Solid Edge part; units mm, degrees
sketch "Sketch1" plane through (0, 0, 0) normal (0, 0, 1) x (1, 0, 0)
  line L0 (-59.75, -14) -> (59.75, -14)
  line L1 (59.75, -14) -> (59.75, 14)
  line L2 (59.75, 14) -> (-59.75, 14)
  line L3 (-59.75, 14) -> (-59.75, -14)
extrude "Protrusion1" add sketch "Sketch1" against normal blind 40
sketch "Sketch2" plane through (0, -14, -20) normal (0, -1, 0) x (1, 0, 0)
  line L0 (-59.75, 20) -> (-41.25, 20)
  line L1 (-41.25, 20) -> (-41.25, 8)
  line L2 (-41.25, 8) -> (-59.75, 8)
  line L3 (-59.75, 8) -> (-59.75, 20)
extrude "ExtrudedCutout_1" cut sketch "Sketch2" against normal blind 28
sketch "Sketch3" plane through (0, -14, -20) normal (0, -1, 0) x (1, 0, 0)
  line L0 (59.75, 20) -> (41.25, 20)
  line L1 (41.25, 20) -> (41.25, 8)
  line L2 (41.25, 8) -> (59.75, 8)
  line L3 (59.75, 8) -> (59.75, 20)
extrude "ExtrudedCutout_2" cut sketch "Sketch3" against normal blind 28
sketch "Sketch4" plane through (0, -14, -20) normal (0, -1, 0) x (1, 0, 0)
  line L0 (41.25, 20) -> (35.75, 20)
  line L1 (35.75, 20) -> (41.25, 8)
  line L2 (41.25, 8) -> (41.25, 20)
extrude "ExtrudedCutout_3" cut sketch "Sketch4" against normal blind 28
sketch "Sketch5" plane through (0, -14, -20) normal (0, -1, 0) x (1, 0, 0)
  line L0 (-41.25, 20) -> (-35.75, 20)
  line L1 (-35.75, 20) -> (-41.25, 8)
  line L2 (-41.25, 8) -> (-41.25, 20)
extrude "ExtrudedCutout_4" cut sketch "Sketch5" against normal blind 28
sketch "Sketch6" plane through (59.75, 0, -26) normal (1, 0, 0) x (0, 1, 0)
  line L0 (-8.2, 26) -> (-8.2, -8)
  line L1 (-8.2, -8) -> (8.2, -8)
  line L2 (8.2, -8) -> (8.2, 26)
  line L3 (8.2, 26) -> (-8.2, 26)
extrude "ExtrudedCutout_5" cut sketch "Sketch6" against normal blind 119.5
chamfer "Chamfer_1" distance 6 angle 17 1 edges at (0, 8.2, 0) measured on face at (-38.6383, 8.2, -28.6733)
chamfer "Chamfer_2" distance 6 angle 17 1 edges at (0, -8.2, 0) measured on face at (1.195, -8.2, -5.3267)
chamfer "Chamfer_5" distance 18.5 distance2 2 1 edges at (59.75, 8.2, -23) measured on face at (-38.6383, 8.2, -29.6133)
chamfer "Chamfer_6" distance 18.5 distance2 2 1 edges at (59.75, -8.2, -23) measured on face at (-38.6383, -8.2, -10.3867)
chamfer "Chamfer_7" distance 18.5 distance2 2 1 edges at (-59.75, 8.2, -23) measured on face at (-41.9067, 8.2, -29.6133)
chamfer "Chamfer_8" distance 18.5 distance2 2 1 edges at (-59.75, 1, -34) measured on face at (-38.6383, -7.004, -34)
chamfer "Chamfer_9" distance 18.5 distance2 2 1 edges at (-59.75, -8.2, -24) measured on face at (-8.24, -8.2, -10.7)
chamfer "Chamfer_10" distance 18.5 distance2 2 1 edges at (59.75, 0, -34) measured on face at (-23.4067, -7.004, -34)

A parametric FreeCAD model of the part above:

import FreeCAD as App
import Part
import Sketcher

V = App.Vector
Q = App.Units.Quantity


def edges_at(feature, points):
    """Names of the edges that pass closest to the given points."""
    edges = feature.Shape.Edges
    near = lambda p: min(range(len(edges)), key=lambda i: edges[i].distToShape(Part.Vertex(*p))[0])
    return sorted({f"Edge{near(p) + 1}" for p in points})

doc = App.newDocument("Part")
params = doc.addObject("Spreadsheet::Sheet", "Params")
for row, (alias, value) in enumerate([
    ("sketch1_height", "28 mm"),
    ("sketch1_width", "119.5 mm"),
    ("pad1_length", "40 mm"),
    ("sketch2_height", "12 mm"),
    ("sketch2_width", "18.5 mm"),
    ("pocket1_length", "28 mm"),
    ("sketch3_height", "12 mm"),
    ("sketch3_width", "18.5 mm"),
    ("pocket2_length", "28 mm"),
    ("sketch4_height", "12 mm"),
    ("sketch4_width", "5.5 mm"),
    ("pocket3_length", "28 mm"),
    ("sketch5_height", "12 mm"),
    ("sketch5_width", "5.5 mm"),
    ("pocket4_length", "28 mm"),
    ("sketch6_height", "34 mm"),
    ("sketch6_width", "16.4 mm"),
    ("pocket5_length", "119.5 mm"),
    ("chamfer_size", "6 mm"),
    ("chamfer2_size", "6 mm"),
    ("chamfer3_size", "18.5 mm"),
    ("chamfer3_size2", "2 mm"),
    ("chamfer4_size", "18.5 mm"),
    ("chamfer4_size2", "2 mm"),
    ("chamfer5_size", "18.5 mm"),
    ("chamfer5_size2", "2 mm"),
    ("chamfer6_size", "18.5 mm"),
    ("chamfer6_size2", "2 mm"),
    ("chamfer7_size", "18.5 mm"),
    ("chamfer7_size2", "2 mm"),
    ("chamfer8_size", "18.5 mm"),
    ("chamfer8_size2", "2 mm"),
], start=1):
    params.set(f"A{row}", alias)
    params.set(f"B{row}", "=" + value)
    params.setAlias(f"B{row}", alias)

body = doc.addObject("PartDesign::Body", "Body")

# Sketch on XY plane
sketch1 = doc.addObject("Sketcher::SketchObject", "Sketch")
body.addObject(sketch1)
sketch1.AttachmentSupport = (doc.XY_Plane, [""])
sketch1.MapMode = "FlatFace"
sketch1.addGeometry(Part.LineSegment(V(-60, 14, 0), V(-60, -14, 0)), False)
sketch1.addGeometry(Part.LineSegment(V(-60, -14, 0), V(60, -14, 0)), False)
sketch1.addGeometry(Part.LineSegment(V(60, -14, 0), V(60, 14, 0)), False)
sketch1.addGeometry(Part.LineSegment(V(60, 14, 0), V(-60, 14, 0)), False)
sketch1.addConstraint(Sketcher.Constraint("Coincident", 0, 2, 1, 1))
sketch1.addConstraint(Sketcher.Constraint("Coincident", 1, 2, 2, 1))
sketch1.addConstraint(Sketcher.Constraint("Coincident", 2, 2, 3, 1))
sketch1.addConstraint(Sketcher.Constraint("Coincident", 3, 2, 0, 1))
sketch1.addConstraint(Sketcher.Constraint("Vertical", 0))
sketch1.addConstraint(Sketcher.Constraint("Horizontal", 1))
sketch1.addConstraint(Sketcher.Constraint("Vertical", 2))
sketch1.addConstraint(Sketcher.Constraint("Horizontal", 3))
sketch1.addConstraint(Sketcher.Constraint("Symmetric", 0, 2, 2, 2, -1, 1))
sketch1.addConstraint(Sketcher.Constraint("DistanceY", 0, 2, 0, 1, Q("28 mm")))
sketch1.addConstraint(Sketcher.Constraint("DistanceX", 1, 1, 1, 2, Q("119.5 mm")))
sketch1.setExpression("Constraints[9]", "Params.sketch1_height")
sketch1.setExpression("Constraints[10]", "Params.sketch1_width")
pad1 = doc.addObject("PartDesign::Pad", "Pad")
body.addObject(pad1)
pad1.Profile = sketch1
pad1.setExpression("Length", "Params.pad1_length")
pad1.Reversed = True

# Sketch on XZ plane
sketch2 = doc.addObject("Sketcher::SketchObject", "Sketch001")
body.addObject(sketch2)
sketch2.AttachmentSupport = (doc.XZ_Plane, [""])
sketch2.MapMode = "FlatFace"
sketch2.AttachmentOffset = App.Placement(V(0, 0, 14), App.Rotation())
sketch2.addGeometry(Part.LineSegment(V(-41, 0, 0), V(-60, 0, 0)), False)
sketch2.addGeometry(Part.LineSegment(V(-60, 0, 0), V(-60, -12, 0)), False)
sketch2.addGeometry(Part.LineSegment(V(-60, -12, 0), V(-41, -12, 0)), False)
sketch2.addGeometry(Part.LineSegment(V(-41, -12, 0), V(-41, 0, 0)), False)
sketch2.addConstraint(Sketcher.Constraint("Coincident", 0, 2, 1, 1))
sketch2.addConstraint(Sketcher.Constraint("Coincident", 1, 2, 2, 1))
sketch2.addConstraint(Sketcher.Constraint("Coincident", 2, 2, 3, 1))
sketch2.addConstraint(Sketcher.Constraint("Coincident", 3, 2, 0, 1))
sketch2.addConstraint(Sketcher.Constraint("Horizontal", 0))
sketch2.addConstraint(Sketcher.Constraint("Vertical", 1))
sketch2.addConstraint(Sketcher.Constraint("Horizontal", 2))
sketch2.addConstraint(Sketcher.Constraint("Vertical", 3))
sketch2.addConstraint(Sketcher.Constraint("PointOnObject", 0, 2, -1))
sketch2.addConstraint(Sketcher.Constraint("DistanceY", 1, 2, 1, 1, Q("12 mm")))
sketch2.addConstraint(Sketcher.Constraint("DistanceX", 0, 2, 0, 1, Q("18.5 mm")))
sketch2.addConstraint(Sketcher.Constraint("DistanceX", 0, 2, -1, 1, Q("59.75 mm")))
sketch2.setExpression("Constraints[9]", "Params.sketch2_height")
sketch2.setExpression("Constraints[10]", "Params.sketch2_width")
pocket1 = doc.addObject("PartDesign::Pocket", "Pocket")
body.addObject(pocket1)
pocket1.Profile = sketch2
pocket1.setExpression("Length", "Params.pocket1_length")

# Sketch on XZ plane
sketch3 = doc.addObject("Sketcher::SketchObject", "Sketch002")
body.addObject(sketch3)
sketch3.AttachmentSupport = (doc.XZ_Plane, [""])
sketch3.MapMode = "FlatFace"
sketch3.AttachmentOffset = App.Placement(V(0, 0, 14), App.Rotation())
sketch3.addGeometry(Part.LineSegment(V(60, -12, 0), V(60, 0, 0)), False)
sketch3.addGeometry(Part.LineSegment(V(60, 0, 0), V(41, 0, 0)), False)
sketch3.addGeometry(Part.LineSegment(V(41, 0, 0), V(41, -12, 0)), False)
sketch3.addGeometry(Part.LineSegment(V(41, -12, 0), V(60, -12, 0)), False)
sketch3.addConstraint(Sketcher.Constraint("Coincident", 0, 2, 1, 1))
sketch3.addConstraint(Sketcher.Constraint("Coincident", 1, 2, 2, 1))
sketch3.addConstraint(Sketcher.Constraint("Coincident", 2, 2, 3, 1))
sketch3.addConstraint(Sketcher.Constraint("Coincident", 3, 2, 0, 1))
sketch3.addConstraint(Sketcher.Constraint("Vertical", 0))
sketch3.addConstraint(Sketcher.Constraint("Horizontal", 1))
sketch3.addConstraint(Sketcher.Constraint("Vertical", 2))
sketch3.addConstraint(Sketcher.Constraint("Horizontal", 3))
sketch3.addConstraint(Sketcher.Constraint("PointOnObject", 0, 2, -1))
sketch3.addConstraint(Sketcher.Constraint("DistanceY", 0, 1, 0, 2, Q("12 mm")))
sketch3.addConstraint(Sketcher.Constraint("DistanceX", 1, 2, 1, 1, Q("18.5 mm")))
sketch3.addConstraint(Sketcher.Constraint("DistanceX", -1, 1, 0, 2, Q("59.75 mm")))
sketch3.setExpression("Constraints[9]", "Params.sketch3_height")
sketch3.setExpression("Constraints[10]", "Params.sketch3_width")
pocket2 = doc.addObject("PartDesign::Pocket", "Pocket001")
body.addObject(pocket2)
pocket2.Profile = sketch3
pocket2.setExpression("Length", "Params.pocket2_length")

# Sketch on XZ plane
sketch4 = doc.addObject("Sketcher::SketchObject", "Sketch003")
body.addObject(sketch4)
sketch4.AttachmentSupport = (doc.XZ_Plane, [""])
sketch4.MapMode = "FlatFace"
sketch4.AttachmentOffset = App.Placement(V(0, 0, 14), App.Rotation())
sketch4.addGeometry(Part.LineSegment(V(41, -12, 0), V(41, 0, 0)), False)
sketch4.addGeometry(Part.LineSegment(V(41, 0, 0), V(36, 0, 0)), False)
sketch4.addGeometry(Part.LineSegment(V(36, 0, 0), V(41, -12, 0)), False)
sketch4.addConstraint(Sketcher.Constraint("Coincident", 0, 2, 1, 1))
sketch4.addConstraint(Sketcher.Constraint("Coincident", 1, 2, 2, 1))
sketch4.addConstraint(Sketcher.Constraint("Coincident", 2, 2, 0, 1))
sketch4.addConstraint(Sketcher.Constraint("Vertical", 0))
sketch4.addConstraint(Sketcher.Constraint("Horizontal", 1))
sketch4.addConstraint(Sketcher.Constraint("PointOnObject", 0, 2, -1))
sketch4.addConstraint(Sketcher.Constraint("DistanceY", 0, 1, 0, 2, Q("12 mm")))
sketch4.addConstraint(Sketcher.Constraint("DistanceX", 1, 2, 1, 1, Q("5.5 mm")))
sketch4.addConstraint(Sketcher.Constraint("DistanceX", -1, 1, 0, 2, Q("41.25 mm")))
sketch4.setExpression("Constraints[6]", "Params.sketch4_height")
sketch4.setExpression("Constraints[7]", "Params.sketch4_width")
pocket3 = doc.addObject("PartDesign::Pocket", "Pocket002")
body.addObject(pocket3)
pocket3.Profile = sketch4
pocket3.setExpression("Length", "Params.pocket3_length")

# Sketch on XZ plane
sketch5 = doc.addObject("Sketcher::SketchObject", "Sketch004")
body.addObject(sketch5)
sketch5.AttachmentSupport = (doc.XZ_Plane, [""])
sketch5.MapMode = "FlatFace"
sketch5.AttachmentOffset = App.Placement(V(0, 0, 14), App.Rotation())
sketch5.addGeometry(Part.LineSegment(V(-36, 0, 0), V(-41, 0, 0)), False)
sketch5.addGeometry(Part.LineSegment(V(-41, 0, 0), V(-41, -12, 0)), False)
sketch5.addGeometry(Part.LineSegment(V(-41, -12, 0), V(-36, 0, 0)), False)
sketch5.addConstraint(Sketcher.Constraint("Coincident", 0, 2, 1, 1))
sketch5.addConstraint(Sketcher.Constraint("Coincident", 1, 2, 2, 1))
sketch5.addConstraint(Sketcher.Constraint("Coincident", 2, 2, 0, 1))
sketch5.addConstraint(Sketcher.Constraint("Horizontal", 0))
sketch5.addConstraint(Sketcher.Constraint("Vertical", 1))
sketch5.addConstraint(Sketcher.Constraint("PointOnObject", 0, 2, -1))
sketch5.addConstraint(Sketcher.Constraint("DistanceY", 1, 2, 1, 1, Q("12 mm")))
sketch5.addConstraint(Sketcher.Constraint("DistanceX", 0, 2, 0, 1, Q("5.5 mm")))
sketch5.addConstraint(Sketcher.Constraint("DistanceX", 0, 2, -1, 1, Q("41.25 mm")))
sketch5.setExpression("Constraints[6]", "Params.sketch5_height")
sketch5.setExpression("Constraints[7]", "Params.sketch5_width")
pocket4 = doc.addObject("PartDesign::Pocket", "Pocket003")
body.addObject(pocket4)
pocket4.Profile = sketch5
pocket4.setExpression("Length", "Params.pocket4_length")

# Sketch on YZ plane
sketch6 = doc.addObject("Sketcher::SketchObject", "Sketch005")
body.addObject(sketch6)
sketch6.AttachmentSupport = (doc.YZ_Plane, [""])
sketch6.MapMode = "FlatFace"
sketch6.AttachmentOffset = App.Placement(V(0, 0, 59.75), App.Rotation())
sketch6.addGeometry(Part.LineSegment(V(8, 0, 0), V(-8, 0, 0)), False)
sketch6.addGeometry(Part.LineSegment(V(-8, 0, 0), V(-8, -34, 0)), False)
sketch6.addGeometry(Part.LineSegment(V(-8, -34, 0), V(8, -34, 0)), False)
sketch6.addGeometry(Part.LineSegment(V(8, -34, 0), V(8, 0, 0)), False)
sketch6.addConstraint(Sketcher.Constraint("Coincident", 0, 2, 1, 1))
sketch6.addConstraint(Sketcher.Constraint("Coincident", 1, 2, 2, 1))
sketch6.addConstraint(Sketcher.Constraint("Coincident", 2, 2, 3, 1))
sketch6.addConstraint(Sketcher.Constraint("Coincident", 3, 2, 0, 1))
sketch6.addConstraint(Sketcher.Constraint("Horizontal", 0))
sketch6.addConstraint(Sketcher.Constraint("Vertical", 1))
sketch6.addConstraint(Sketcher.Constraint("Horizontal", 2))
sketch6.addConstraint(Sketcher.Constraint("Vertical", 3))
sketch6.addConstraint(Sketcher.Constraint("Symmetric", 0, 2, 3, 2, -1, 1))
sketch6.addConstraint(Sketcher.Constraint("DistanceY", 1, 2, 1, 1, Q("34 mm")))
sketch6.addConstraint(Sketcher.Constraint("DistanceX", 0, 2, 0, 1, Q("16.4 mm")))
sketch6.setExpression("Constraints[9]", "Params.sketch6_height")
sketch6.setExpression("Constraints[10]", "Params.sketch6_width")
pocket5 = doc.addObject("PartDesign::Pocket", "Pocket004")
body.addObject(pocket5)
pocket5.Profile = sketch6
pocket5.setExpression("Length", "Params.pocket5_length")
doc.recompute()

chamfer = doc.addObject("PartDesign::Chamfer", "Chamfer")
body.addObject(chamfer)
chamfer.Base = (pocket5, edges_at(pocket5, [(0, 8.2, 0)]))
chamfer.ChamferType = "Distance and Angle"
chamfer.setExpression("Size", "Params.chamfer_size")
chamfer.Angle = 17
doc.recompute()

chamfer2 = doc.addObject("PartDesign::Chamfer", "Chamfer001")
body.addObject(chamfer2)
chamfer2.Base = (chamfer, edges_at(chamfer, [(0, -8.2, 0)]))
chamfer2.ChamferType = "Distance and Angle"
chamfer2.setExpression("Size", "Params.chamfer2_size")
chamfer2.Angle = 17
doc.recompute()

chamfer3 = doc.addObject("PartDesign::Chamfer", "Chamfer002")
body.addObject(chamfer3)
chamfer3.Base = (chamfer2, edges_at(chamfer2, [(59.75, 8.2, -23)]))
chamfer3.ChamferType = "Two distances"
chamfer3.setExpression("Size", "Params.chamfer3_size")
chamfer3.setExpression("Size2", "Params.chamfer3_size2")
chamfer3.FlipDirection = True
doc.recompute()

chamfer4 = doc.addObject("PartDesign::Chamfer", "Chamfer003")
body.addObject(chamfer4)
chamfer4.Base = (chamfer3, edges_at(chamfer3, [(59.75, -8.2, -23)]))
chamfer4.ChamferType = "Two distances"
chamfer4.setExpression("Size", "Params.chamfer4_size")
chamfer4.setExpression("Size2", "Params.chamfer4_size2")
chamfer4.FlipDirection = True
doc.recompute()

chamfer5 = doc.addObject("PartDesign::Chamfer", "Chamfer004")
body.addObject(chamfer5)
chamfer5.Base = (chamfer4, edges_at(chamfer4, [(-59.75, 8.2, -23)]))
chamfer5.ChamferType = "Two distances"
chamfer5.setExpression("Size", "Params.chamfer5_size")
chamfer5.setExpression("Size2", "Params.chamfer5_size2")
chamfer5.FlipDirection = True
doc.recompute()

chamfer6 = doc.addObject("PartDesign::Chamfer", "Chamfer005")
body.addObject(chamfer6)
chamfer6.Base = (chamfer5, edges_at(chamfer5, [(-59.75, 1, -34)]))
chamfer6.ChamferType = "Two distances"
chamfer6.setExpression("Size", "Params.chamfer6_size")
chamfer6.setExpression("Size2", "Params.chamfer6_size2")
doc.recompute()

chamfer7 = doc.addObject("PartDesign::Chamfer", "Chamfer006")
body.addObject(chamfer7)
chamfer7.Base = (chamfer6, edges_at(chamfer6, [(-59.75, -8.2, -24)]))
chamfer7.ChamferType = "Two distances"
chamfer7.setExpression("Size", "Params.chamfer7_size")
chamfer7.setExpression("Size2", "Params.chamfer7_size2")
doc.recompute()

chamfer8 = doc.addObject("PartDesign::Chamfer", "Chamfer007")
body.addObject(chamfer8)
chamfer8.Base = (chamfer7, edges_at(chamfer7, [(59.75, 0, -34)]))
chamfer8.ChamferType = "Two distances"
chamfer8.setExpression("Size", "Params.chamfer8_size")
chamfer8.setExpression("Size2", "Params.chamfer8_size2")

doc.recompute()
